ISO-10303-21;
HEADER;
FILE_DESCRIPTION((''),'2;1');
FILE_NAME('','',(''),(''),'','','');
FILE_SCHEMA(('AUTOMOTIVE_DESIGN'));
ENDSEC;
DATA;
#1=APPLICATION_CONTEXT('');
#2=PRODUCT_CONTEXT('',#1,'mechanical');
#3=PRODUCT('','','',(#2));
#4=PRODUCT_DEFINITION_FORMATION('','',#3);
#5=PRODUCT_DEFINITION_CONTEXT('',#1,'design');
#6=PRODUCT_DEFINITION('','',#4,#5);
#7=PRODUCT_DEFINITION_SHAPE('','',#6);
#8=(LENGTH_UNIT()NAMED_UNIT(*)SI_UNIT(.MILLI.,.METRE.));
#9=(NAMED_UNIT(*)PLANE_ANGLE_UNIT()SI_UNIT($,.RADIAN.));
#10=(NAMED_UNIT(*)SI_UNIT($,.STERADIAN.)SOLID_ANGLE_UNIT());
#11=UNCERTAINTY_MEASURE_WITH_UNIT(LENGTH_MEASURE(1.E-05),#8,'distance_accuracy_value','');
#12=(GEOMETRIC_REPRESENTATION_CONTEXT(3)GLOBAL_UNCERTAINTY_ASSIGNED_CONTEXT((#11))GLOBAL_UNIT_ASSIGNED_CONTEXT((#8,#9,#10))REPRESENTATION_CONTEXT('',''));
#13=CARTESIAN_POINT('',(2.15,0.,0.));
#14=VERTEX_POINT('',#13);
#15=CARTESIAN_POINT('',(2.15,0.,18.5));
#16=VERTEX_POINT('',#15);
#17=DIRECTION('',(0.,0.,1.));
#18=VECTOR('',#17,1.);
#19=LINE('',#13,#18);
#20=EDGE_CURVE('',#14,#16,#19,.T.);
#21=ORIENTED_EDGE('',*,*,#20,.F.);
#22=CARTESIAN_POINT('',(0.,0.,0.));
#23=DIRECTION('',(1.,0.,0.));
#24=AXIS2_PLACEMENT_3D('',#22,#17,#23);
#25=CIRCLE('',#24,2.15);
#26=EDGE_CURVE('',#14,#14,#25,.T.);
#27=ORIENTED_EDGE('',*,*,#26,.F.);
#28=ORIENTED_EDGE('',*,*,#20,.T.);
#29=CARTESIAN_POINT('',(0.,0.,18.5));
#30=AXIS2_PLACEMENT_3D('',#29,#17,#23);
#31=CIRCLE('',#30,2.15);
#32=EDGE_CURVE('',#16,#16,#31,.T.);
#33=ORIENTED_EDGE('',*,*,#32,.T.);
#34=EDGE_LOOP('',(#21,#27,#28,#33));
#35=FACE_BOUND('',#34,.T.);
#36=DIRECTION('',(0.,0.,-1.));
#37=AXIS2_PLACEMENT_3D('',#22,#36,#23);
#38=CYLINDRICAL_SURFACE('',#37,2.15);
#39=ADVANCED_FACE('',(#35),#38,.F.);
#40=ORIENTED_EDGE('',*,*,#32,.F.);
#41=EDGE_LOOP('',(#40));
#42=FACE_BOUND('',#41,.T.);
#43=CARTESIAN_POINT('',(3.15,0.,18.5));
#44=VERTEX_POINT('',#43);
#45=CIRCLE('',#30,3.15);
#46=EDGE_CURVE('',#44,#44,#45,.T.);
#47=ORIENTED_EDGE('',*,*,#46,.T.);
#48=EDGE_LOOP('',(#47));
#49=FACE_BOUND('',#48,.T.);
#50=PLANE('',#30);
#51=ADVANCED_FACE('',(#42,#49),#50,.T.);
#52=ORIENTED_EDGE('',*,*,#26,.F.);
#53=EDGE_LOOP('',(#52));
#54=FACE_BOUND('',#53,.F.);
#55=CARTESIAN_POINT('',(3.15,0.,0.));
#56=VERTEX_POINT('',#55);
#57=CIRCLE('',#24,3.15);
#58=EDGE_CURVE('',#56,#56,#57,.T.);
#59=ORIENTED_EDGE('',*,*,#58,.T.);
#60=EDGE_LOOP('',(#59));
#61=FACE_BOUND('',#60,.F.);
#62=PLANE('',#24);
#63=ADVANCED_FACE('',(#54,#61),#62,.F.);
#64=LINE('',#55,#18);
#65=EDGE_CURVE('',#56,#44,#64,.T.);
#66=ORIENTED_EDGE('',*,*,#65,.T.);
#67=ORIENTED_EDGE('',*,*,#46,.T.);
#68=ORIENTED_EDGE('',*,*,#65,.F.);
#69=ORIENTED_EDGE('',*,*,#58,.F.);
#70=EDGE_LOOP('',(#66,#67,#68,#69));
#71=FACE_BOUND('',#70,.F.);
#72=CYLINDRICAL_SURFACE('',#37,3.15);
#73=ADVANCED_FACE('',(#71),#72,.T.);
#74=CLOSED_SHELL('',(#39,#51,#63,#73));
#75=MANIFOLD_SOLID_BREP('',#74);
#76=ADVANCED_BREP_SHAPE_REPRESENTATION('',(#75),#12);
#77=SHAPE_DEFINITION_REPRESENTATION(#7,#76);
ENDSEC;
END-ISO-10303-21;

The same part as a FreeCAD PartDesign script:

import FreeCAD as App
import Part
import Sketcher

V = App.Vector

doc = App.newDocument("Part")
params = doc.addObject("Spreadsheet::Sheet", "Params")
for row, (alias, value) in enumerate([
    ("sketch1_diameter", "4.3 mm"),
    ("sketch1_diameter2", "6.3 mm"),
    ("pad1_length", "18.5 mm"),
], start=1):
    params.set(f"A{row}", alias)
    params.set(f"B{row}", "=" + value)
    params.setAlias(f"B{row}", alias)

body = doc.addObject("PartDesign::Body", "Body")

sketch1 = body.newObject("Sketcher::SketchObject", "Sketch")
sketch1.AttachmentSupport = (doc.getObject("XY_Plane"), [""])
sketch1.MapMode = "FlatFace"
sketch1.addGeometry([
    Part.Circle(V(0, 0, 0), V(0, 0, 1), 3.15),
    Part.Circle(V(0, 0, 0), V(0, 0, 1), 2.15),
], False)
sketch1.addConstraint([
    Sketcher.Constraint("Coincident", 0, 3, -1, 1),
    Sketcher.Constraint("Coincident", 1, 3, -1, 1),
    Sketcher.Constraint("Diameter", 1, 4.3),
    Sketcher.Constraint("Diameter", 0, 6.3),
])
sketch1.setExpression("Constraints[2]", "Params.sketch1_diameter")
sketch1.setExpression("Constraints[3]", "Params.sketch1_diameter2")
pad1 = body.newObject("PartDesign::Pad", "Pad")
pad1.Profile = sketch1
pad1.setExpression("Length", "Params.pad1_length")

doc.recompute()
